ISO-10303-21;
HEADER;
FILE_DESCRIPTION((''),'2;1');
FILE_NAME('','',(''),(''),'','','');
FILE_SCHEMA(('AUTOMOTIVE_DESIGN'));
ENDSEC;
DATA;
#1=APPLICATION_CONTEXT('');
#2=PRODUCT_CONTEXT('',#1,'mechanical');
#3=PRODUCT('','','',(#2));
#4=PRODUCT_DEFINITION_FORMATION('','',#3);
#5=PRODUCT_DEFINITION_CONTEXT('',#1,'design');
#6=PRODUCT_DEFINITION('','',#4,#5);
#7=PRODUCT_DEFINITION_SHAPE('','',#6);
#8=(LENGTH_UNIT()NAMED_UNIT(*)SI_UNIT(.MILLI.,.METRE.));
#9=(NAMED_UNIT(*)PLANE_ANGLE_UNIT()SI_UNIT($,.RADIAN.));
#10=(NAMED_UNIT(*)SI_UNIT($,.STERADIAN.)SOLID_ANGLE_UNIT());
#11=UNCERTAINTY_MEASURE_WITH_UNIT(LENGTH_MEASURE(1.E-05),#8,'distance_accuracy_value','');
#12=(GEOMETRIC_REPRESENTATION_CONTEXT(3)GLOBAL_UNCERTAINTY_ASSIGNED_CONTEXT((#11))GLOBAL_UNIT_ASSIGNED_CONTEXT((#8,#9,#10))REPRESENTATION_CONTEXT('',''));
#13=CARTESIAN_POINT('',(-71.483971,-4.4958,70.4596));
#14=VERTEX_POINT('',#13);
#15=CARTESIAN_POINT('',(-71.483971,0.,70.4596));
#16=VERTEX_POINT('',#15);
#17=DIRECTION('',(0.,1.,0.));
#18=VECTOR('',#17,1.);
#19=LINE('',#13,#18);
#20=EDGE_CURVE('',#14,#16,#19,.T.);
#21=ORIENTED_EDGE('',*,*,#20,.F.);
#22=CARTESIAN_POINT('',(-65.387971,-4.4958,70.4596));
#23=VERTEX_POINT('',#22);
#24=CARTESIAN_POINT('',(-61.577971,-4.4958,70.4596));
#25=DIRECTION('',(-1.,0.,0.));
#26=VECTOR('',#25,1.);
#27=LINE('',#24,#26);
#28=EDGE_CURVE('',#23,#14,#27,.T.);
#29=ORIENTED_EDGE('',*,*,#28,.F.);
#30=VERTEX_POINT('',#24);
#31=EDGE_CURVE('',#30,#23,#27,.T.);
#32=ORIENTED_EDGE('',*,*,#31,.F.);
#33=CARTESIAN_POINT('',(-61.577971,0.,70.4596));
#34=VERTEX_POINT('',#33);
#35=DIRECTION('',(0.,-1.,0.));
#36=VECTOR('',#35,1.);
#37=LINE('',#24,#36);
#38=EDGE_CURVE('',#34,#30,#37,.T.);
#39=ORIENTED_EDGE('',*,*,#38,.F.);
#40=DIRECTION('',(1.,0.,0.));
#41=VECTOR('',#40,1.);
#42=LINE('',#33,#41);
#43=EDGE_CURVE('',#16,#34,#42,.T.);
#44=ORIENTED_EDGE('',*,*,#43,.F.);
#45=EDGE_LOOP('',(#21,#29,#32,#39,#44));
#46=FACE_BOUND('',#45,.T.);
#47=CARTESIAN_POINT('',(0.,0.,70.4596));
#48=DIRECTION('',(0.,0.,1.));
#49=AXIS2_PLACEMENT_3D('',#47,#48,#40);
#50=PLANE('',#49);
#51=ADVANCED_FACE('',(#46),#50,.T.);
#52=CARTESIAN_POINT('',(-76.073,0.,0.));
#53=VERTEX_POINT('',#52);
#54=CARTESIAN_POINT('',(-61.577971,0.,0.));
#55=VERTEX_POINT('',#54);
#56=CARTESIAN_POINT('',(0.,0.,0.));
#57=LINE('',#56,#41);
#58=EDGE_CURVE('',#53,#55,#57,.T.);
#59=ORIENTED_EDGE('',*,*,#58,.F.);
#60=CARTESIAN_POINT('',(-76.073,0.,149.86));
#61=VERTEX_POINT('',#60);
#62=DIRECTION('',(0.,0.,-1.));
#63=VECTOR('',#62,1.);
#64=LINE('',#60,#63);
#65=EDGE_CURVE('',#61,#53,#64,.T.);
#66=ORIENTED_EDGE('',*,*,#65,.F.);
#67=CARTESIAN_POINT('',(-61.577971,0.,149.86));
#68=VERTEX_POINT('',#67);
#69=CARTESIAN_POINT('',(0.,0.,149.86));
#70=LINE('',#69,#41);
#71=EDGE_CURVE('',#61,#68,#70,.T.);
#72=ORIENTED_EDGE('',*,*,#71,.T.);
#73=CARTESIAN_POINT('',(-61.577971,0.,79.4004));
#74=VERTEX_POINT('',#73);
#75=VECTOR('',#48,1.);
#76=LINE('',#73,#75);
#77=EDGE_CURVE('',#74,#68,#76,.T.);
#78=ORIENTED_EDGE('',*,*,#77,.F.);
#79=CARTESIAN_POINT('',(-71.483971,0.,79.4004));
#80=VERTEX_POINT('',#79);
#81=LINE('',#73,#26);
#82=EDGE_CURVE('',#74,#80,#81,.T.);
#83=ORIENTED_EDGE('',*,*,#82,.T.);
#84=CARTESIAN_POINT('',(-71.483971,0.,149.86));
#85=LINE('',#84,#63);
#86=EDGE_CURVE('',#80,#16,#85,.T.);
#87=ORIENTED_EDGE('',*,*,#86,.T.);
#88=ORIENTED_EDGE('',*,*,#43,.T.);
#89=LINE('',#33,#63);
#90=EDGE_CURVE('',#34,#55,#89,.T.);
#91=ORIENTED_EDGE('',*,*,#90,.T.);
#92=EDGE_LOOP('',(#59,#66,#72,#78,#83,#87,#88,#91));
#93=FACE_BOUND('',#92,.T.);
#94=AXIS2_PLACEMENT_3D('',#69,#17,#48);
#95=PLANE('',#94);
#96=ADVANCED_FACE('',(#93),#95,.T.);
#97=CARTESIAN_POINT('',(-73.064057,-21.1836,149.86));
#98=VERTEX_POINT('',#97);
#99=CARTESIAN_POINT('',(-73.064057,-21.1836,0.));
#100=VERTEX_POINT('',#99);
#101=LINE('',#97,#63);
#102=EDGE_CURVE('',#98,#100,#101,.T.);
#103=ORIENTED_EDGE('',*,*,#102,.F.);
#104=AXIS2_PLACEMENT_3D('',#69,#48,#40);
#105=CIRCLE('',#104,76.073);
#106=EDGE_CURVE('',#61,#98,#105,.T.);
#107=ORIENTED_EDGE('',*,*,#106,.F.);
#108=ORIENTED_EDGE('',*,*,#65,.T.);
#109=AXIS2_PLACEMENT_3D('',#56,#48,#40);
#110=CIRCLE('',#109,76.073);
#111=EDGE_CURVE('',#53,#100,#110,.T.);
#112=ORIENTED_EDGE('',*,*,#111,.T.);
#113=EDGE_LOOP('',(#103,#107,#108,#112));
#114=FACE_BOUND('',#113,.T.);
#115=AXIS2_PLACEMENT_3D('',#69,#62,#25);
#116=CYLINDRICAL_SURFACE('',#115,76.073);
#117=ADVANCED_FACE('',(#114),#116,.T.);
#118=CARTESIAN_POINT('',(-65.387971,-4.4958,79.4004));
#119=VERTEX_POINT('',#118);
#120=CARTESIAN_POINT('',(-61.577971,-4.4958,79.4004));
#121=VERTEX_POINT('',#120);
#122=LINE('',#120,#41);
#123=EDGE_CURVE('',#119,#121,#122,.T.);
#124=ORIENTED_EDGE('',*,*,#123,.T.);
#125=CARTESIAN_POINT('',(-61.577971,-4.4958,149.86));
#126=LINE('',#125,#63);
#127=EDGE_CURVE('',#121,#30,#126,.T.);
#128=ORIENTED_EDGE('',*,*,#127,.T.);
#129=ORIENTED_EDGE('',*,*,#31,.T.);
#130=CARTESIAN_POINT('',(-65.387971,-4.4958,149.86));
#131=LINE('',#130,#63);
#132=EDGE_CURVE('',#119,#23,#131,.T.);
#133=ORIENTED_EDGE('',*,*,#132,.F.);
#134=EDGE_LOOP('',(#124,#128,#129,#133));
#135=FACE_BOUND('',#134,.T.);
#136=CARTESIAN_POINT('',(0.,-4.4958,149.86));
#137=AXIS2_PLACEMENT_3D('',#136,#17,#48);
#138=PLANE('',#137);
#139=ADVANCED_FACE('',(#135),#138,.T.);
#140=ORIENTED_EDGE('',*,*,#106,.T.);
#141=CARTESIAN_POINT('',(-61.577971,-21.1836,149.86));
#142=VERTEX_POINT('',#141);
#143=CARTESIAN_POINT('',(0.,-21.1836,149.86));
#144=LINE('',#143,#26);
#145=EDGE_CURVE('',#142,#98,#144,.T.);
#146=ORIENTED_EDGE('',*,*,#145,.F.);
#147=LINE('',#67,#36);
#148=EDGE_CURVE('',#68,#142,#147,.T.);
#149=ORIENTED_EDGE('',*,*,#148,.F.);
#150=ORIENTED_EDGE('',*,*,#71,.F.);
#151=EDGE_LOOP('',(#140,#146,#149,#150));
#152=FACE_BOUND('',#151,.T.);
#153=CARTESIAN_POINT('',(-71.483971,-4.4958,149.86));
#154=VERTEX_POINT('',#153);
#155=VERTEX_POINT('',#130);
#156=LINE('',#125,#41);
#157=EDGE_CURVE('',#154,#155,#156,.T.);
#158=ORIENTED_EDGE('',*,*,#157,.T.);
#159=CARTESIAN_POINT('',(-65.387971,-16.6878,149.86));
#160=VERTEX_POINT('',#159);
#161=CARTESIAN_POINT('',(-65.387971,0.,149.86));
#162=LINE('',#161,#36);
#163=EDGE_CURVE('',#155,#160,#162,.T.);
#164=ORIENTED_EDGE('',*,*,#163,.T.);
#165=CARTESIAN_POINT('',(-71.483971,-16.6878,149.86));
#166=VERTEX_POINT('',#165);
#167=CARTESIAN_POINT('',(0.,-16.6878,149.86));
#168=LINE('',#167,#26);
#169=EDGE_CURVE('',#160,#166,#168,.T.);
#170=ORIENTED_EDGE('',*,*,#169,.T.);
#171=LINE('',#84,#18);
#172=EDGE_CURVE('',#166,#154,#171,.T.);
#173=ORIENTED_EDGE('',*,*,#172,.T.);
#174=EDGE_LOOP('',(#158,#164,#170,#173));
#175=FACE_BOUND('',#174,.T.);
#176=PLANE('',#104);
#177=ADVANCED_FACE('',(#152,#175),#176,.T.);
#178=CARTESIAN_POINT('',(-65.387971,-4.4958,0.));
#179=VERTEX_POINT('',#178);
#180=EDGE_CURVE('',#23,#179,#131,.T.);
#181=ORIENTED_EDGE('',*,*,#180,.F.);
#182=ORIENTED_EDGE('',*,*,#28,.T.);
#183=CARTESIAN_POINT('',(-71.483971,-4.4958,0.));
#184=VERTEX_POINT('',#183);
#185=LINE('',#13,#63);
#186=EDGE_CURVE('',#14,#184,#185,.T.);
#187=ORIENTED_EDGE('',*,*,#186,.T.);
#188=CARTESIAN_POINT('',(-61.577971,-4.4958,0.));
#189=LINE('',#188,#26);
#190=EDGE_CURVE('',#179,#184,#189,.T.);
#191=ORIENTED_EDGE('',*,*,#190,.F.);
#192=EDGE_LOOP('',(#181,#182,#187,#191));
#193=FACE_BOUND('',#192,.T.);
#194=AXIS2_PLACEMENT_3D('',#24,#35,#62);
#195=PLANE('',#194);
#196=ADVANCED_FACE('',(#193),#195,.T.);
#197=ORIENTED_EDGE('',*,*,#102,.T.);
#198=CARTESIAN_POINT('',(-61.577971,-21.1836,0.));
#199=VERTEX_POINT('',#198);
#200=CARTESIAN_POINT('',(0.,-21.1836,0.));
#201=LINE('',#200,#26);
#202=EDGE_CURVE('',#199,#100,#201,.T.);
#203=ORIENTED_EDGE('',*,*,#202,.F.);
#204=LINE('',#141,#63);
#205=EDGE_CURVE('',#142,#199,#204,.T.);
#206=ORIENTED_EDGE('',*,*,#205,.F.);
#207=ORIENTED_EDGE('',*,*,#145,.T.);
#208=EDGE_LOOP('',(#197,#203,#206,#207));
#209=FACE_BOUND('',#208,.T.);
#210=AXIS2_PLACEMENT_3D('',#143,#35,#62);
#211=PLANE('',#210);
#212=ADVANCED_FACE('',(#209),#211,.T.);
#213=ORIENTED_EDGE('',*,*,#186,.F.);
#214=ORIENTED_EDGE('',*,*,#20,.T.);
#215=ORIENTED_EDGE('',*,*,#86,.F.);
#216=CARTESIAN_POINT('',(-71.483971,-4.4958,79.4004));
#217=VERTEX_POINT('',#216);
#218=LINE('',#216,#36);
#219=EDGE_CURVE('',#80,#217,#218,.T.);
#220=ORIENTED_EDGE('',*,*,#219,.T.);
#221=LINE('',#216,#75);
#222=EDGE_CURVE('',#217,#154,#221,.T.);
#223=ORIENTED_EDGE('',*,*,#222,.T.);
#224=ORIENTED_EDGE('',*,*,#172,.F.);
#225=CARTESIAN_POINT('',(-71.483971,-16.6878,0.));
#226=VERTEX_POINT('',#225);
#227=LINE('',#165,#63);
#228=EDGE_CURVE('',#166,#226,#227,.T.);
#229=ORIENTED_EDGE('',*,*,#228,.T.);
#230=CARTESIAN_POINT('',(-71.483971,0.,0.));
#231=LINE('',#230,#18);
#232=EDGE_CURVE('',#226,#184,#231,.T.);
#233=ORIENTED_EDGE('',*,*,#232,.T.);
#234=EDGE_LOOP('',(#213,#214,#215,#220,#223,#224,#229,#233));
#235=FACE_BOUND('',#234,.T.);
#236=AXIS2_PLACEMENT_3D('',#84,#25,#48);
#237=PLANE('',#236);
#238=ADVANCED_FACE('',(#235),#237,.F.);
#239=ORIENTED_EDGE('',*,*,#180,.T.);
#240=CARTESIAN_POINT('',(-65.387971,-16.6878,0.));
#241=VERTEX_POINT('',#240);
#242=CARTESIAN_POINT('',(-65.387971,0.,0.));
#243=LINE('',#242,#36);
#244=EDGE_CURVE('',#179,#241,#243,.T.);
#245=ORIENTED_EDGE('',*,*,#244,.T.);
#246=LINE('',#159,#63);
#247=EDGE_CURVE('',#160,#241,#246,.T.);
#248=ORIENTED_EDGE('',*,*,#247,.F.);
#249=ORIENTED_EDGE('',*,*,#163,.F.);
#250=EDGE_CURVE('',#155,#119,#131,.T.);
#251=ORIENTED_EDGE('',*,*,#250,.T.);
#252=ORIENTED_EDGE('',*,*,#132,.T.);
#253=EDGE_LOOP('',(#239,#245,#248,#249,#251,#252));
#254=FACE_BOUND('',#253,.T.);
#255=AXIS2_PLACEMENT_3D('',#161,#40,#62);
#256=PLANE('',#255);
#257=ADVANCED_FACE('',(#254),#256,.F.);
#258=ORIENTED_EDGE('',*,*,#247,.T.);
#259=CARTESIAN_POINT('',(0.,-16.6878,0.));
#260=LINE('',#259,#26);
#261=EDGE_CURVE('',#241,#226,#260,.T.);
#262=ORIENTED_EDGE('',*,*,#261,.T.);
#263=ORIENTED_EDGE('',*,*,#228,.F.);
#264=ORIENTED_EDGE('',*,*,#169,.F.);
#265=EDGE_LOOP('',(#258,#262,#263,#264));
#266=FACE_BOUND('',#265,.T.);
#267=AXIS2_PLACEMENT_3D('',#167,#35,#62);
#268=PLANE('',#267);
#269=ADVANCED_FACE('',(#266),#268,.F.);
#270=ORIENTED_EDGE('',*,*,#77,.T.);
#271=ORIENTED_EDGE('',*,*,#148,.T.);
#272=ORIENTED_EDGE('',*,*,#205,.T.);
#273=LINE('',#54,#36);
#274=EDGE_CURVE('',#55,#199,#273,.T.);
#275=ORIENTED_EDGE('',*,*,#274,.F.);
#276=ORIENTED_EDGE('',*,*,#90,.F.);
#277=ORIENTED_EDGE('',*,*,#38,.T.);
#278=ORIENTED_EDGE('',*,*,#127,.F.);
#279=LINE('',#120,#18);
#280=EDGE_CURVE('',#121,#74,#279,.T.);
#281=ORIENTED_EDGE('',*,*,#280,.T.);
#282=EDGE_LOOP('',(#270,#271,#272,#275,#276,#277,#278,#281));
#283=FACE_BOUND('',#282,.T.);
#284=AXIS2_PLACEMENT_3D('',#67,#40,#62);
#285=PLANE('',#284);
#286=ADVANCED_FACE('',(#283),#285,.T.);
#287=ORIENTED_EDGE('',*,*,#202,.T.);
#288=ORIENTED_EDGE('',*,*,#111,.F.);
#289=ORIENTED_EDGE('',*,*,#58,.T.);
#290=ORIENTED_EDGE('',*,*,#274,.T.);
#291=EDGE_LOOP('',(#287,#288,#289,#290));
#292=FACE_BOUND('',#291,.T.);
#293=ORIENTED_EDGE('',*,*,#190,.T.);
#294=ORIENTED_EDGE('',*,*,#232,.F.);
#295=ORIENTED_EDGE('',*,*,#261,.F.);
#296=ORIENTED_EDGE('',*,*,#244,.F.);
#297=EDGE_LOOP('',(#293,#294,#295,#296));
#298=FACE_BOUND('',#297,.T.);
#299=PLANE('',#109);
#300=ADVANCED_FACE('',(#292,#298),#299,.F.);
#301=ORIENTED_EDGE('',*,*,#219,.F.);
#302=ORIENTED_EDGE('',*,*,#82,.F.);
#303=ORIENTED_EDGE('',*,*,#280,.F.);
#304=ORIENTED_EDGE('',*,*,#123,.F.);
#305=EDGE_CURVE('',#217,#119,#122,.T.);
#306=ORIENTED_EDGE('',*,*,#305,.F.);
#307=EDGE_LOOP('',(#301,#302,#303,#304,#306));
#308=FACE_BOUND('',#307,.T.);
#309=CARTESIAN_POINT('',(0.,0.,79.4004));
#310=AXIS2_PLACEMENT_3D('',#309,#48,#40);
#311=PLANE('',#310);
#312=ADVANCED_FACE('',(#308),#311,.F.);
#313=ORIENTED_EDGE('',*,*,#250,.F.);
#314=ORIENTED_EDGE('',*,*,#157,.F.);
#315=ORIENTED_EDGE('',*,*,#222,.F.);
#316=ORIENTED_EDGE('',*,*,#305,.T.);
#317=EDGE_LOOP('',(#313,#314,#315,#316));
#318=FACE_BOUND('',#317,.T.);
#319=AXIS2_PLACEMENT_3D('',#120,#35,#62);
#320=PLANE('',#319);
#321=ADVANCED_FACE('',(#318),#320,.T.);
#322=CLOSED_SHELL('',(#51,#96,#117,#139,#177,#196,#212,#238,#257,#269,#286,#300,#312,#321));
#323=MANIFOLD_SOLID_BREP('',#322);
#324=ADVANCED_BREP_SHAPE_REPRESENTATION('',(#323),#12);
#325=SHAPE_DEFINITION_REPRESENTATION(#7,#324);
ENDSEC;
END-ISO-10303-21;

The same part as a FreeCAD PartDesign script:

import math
import FreeCAD as App
import Part
import Sketcher
Q = App.Units.Quantity

doc = App.newDocument("Part")
params = doc.addObject("Spreadsheet::Sheet", "Params")
for row, (alias, value) in enumerate([
    ("sketch1_radius", "2.995 in"),
    ("sketch1_width", "0.15 in"),
    ("sketch1_width2", "0.24 in"),
    ("sketch1_height", "0.48 in"),
    ("sketch1_height2", "0.657 in"),
    ("pad1_length", "5.9 in"),
    ("sketch2_width", "0.39 in"),
    ("sketch2_height", "0.177 in"),
    ("pad2_length", "2.774 in"),
    ("sketch3_width", "0.39 in"),
    ("sketch3_height", "0.177 in"),
    ("pad3_length", "2.774 in"),
], start=1):
    params.set(f"A{row}", alias)
    params.set(f"B{row}", "=" + value)
    params.setAlias(f"B{row}", alias)

body = doc.addObject("PartDesign::Body", "Body")

# Sketch on XY plane
sketch1 = body.newObject("Sketcher::SketchObject", "Sketch")
sketch1.AttachmentSupport = (doc.getObject("XY_Plane"), [""])
sketch1.MapMode = "FlatFace"
sketch1.addGeometry([
    Part.LineSegment(App.Vector(-61.6, -4.5, 0), App.Vector(-65.4, -4.5, 0)),  # 0
    Part.LineSegment(App.Vector(-65.4, -4.5, 0), App.Vector(-65.4, -16.7, 0)),  # 1
    Part.LineSegment(App.Vector(-65.4, -16.7, 0), App.Vector(-71.5, -16.7, 0)),  # 2
    Part.LineSegment(App.Vector(-71.5, -16.7, 0), App.Vector(-71.5, 0, 0)),  # 3
    Part.LineSegment(App.Vector(-71.5, 0, 0), App.Vector(-76.1, 0, 0)),  # 4
    Part.ArcOfCircle(Part.Circle(App.Vector(0, 0, 0), App.Vector(0, 0, 1), 76.1), math.radians(180), math.radians(196.17)),  # 5
    Part.LineSegment(App.Vector(-73.1, -21.2, 0), App.Vector(-61.6, -21.2, 0)),  # 6
    Part.LineSegment(App.Vector(-61.6, -21.2, 0), App.Vector(-61.6, -4.5, 0)),  # 7
], False)
sketch1.addConstraint([
    Sketcher.Constraint("Coincident", 0, 2, 1, 1),
    Sketcher.Constraint("Coincident", 1, 2, 2, 1),
    Sketcher.Constraint("Coincident", 2, 2, 3, 1),
    Sketcher.Constraint("Coincident", 3, 2, 4, 1),
    Sketcher.Constraint("Coincident", 4, 2, 5, 1),
    Sketcher.Constraint("Coincident", 5, 2, 6, 1),
    Sketcher.Constraint("Coincident", 6, 2, 7, 1),
    Sketcher.Constraint("Coincident", 7, 2, 0, 1),
    Sketcher.Constraint("Horizontal", 0),
    Sketcher.Constraint("Vertical", 1),
    Sketcher.Constraint("Horizontal", 2),
    Sketcher.Constraint("Vertical", 3),
    Sketcher.Constraint("Horizontal", 4),
    Sketcher.Constraint("Horizontal", 6),
    Sketcher.Constraint("Vertical", 7),
    Sketcher.Constraint("Coincident", 5, 3, -1, 1),
    Sketcher.Constraint("PointOnObject", 3, 2, -1),
    Sketcher.Constraint("Equal", 3, 7),
    Sketcher.Constraint("Radius", 5, Q("2.995 in")),
    Sketcher.Constraint("DistanceX", 0, 2, 0, 1, Q("0.15 in")),
    Sketcher.Constraint("DistanceX", 2, 2, 2, 1, Q("0.24 in")),
    Sketcher.Constraint("DistanceY", 1, 2, 1, 1, Q("0.48 in")),
    Sketcher.Constraint("DistanceY", 3, 1, 3, 2, Q("0.657 in")),
    Sketcher.Constraint("DistanceX", 4, 2, 4, 1, Q("4.589029 mm")),
])
sketch1.setExpression("Constraints[18]", "Params.sketch1_radius")
sketch1.setExpression("Constraints[19]", "Params.sketch1_width")
sketch1.setExpression("Constraints[20]", "Params.sketch1_width2")
sketch1.setExpression("Constraints[21]", "Params.sketch1_height")
sketch1.setExpression("Constraints[22]", "Params.sketch1_height2")
pad1 = body.newObject("PartDesign::Pad", "Pad")
pad1.Profile = sketch1
pad1.setExpression("Length", "Params.pad1_length")

# Sketch on XY plane
sketch2 = body.newObject("Sketcher::SketchObject", "Sketch001")
sketch2.AttachmentSupport = (doc.getObject("XY_Plane"), [""])
sketch2.MapMode = "FlatFace"
sketch2.AttachmentOffset = App.Placement(App.Vector(0, 0, 5.9 * 25.4), App.Rotation())
sketch2.addGeometry([
    Part.LineSegment(App.Vector(-71.5, 0, 0), App.Vector(-71.5, -4.5, 0)),
    Part.LineSegment(App.Vector(-71.5, -4.5, 0), App.Vector(-61.6, -4.5, 0)),
    Part.LineSegment(App.Vector(-61.6, -4.5, 0), App.Vector(-61.6, 0, 0)),
    Part.LineSegment(App.Vector(-61.6, 0, 0), App.Vector(-71.5, 0, 0)),
], False)
sketch2.addConstraint([
    Sketcher.Constraint("Coincident", 0, 2, 1, 1),
    Sketcher.Constraint("Coincident", 1, 2, 2, 1),
    Sketcher.Constraint("Coincident", 2, 2, 3, 1),
    Sketcher.Constraint("Coincident", 3, 2, 0, 1),
    Sketcher.Constraint("Vertical", 0),
    Sketcher.Constraint("Horizontal", 1),
    Sketcher.Constraint("Vertical", 2),
    Sketcher.Constraint("Horizontal", 3),
    Sketcher.Constraint("PointOnObject", 2, 2, -1),
    Sketcher.Constraint("DistanceX", 1, 1, 1, 2, Q("0.39 in")),
    Sketcher.Constraint("DistanceY", 0, 2, 0, 1, Q("0.177 in")),
    Sketcher.Constraint("DistanceX", 0, 2, -1, 1, Q("71.483971 mm")),
])
sketch2.setExpression("Constraints[9]", "Params.sketch2_width")
sketch2.setExpression("Constraints[10]", "Params.sketch2_height")
pad2 = body.newObject("PartDesign::Pad", "Pad001")
pad2.Profile = sketch2
pad2.setExpression("Length", "Params.pad2_length")
pad2.Reversed = True

# Sketch on XY plane
sketch3 = body.newObject("Sketcher::SketchObject", "Sketch002")
sketch3.AttachmentSupport = (doc.getObject("XY_Plane"), [""])
sketch3.MapMode = "FlatFace"
sketch3.addGeometry([
    Part.LineSegment(App.Vector(-61.6, 0, 0), App.Vector(-61.6, -4.5, 0)),
    Part.LineSegment(App.Vector(-61.6, -4.5, 0), App.Vector(-71.5, -4.5, 0)),
    Part.LineSegment(App.Vector(-71.5, -4.5, 0), App.Vector(-71.5, 0, 0)),
    Part.LineSegment(App.Vector(-71.5, 0, 0), App.Vector(-61.6, 0, 0)),
], False)
sketch3.addConstraint([
    Sketcher.Constraint("Coincident", 0, 2, 1, 1),
    Sketcher.Constraint("Coincident", 1, 2, 2, 1),
    Sketcher.Constraint("Coincident", 2, 2, 3, 1),
    Sketcher.Constraint("Coincident", 3, 2, 0, 1),
    Sketcher.Constraint("Vertical", 0),
    Sketcher.Constraint("Horizontal", 1),
    Sketcher.Constraint("Vertical", 2),
    Sketcher.Constraint("Horizontal", 3),
    Sketcher.Constraint("PointOnObject", 2, 2, -1),
    Sketcher.Constraint("DistanceX", 1, 2, 1, 1, Q("0.39 in")),
    Sketcher.Constraint("DistanceY", 0, 2, 0, 1, Q("0.177 in")),
    Sketcher.Constraint("DistanceX", 0, 2, -1, 1, Q("61.577971 mm")),
])
sketch3.setExpression("Constraints[9]", "Params.sketch3_width")
sketch3.setExpression("Constraints[10]", "Params.sketch3_height")
pad3 = body.newObject("PartDesign::Pad", "Pad002")
pad3.Profile = sketch3
pad3.setExpression("Length", "Params.pad3_length")

doc.recompute()
